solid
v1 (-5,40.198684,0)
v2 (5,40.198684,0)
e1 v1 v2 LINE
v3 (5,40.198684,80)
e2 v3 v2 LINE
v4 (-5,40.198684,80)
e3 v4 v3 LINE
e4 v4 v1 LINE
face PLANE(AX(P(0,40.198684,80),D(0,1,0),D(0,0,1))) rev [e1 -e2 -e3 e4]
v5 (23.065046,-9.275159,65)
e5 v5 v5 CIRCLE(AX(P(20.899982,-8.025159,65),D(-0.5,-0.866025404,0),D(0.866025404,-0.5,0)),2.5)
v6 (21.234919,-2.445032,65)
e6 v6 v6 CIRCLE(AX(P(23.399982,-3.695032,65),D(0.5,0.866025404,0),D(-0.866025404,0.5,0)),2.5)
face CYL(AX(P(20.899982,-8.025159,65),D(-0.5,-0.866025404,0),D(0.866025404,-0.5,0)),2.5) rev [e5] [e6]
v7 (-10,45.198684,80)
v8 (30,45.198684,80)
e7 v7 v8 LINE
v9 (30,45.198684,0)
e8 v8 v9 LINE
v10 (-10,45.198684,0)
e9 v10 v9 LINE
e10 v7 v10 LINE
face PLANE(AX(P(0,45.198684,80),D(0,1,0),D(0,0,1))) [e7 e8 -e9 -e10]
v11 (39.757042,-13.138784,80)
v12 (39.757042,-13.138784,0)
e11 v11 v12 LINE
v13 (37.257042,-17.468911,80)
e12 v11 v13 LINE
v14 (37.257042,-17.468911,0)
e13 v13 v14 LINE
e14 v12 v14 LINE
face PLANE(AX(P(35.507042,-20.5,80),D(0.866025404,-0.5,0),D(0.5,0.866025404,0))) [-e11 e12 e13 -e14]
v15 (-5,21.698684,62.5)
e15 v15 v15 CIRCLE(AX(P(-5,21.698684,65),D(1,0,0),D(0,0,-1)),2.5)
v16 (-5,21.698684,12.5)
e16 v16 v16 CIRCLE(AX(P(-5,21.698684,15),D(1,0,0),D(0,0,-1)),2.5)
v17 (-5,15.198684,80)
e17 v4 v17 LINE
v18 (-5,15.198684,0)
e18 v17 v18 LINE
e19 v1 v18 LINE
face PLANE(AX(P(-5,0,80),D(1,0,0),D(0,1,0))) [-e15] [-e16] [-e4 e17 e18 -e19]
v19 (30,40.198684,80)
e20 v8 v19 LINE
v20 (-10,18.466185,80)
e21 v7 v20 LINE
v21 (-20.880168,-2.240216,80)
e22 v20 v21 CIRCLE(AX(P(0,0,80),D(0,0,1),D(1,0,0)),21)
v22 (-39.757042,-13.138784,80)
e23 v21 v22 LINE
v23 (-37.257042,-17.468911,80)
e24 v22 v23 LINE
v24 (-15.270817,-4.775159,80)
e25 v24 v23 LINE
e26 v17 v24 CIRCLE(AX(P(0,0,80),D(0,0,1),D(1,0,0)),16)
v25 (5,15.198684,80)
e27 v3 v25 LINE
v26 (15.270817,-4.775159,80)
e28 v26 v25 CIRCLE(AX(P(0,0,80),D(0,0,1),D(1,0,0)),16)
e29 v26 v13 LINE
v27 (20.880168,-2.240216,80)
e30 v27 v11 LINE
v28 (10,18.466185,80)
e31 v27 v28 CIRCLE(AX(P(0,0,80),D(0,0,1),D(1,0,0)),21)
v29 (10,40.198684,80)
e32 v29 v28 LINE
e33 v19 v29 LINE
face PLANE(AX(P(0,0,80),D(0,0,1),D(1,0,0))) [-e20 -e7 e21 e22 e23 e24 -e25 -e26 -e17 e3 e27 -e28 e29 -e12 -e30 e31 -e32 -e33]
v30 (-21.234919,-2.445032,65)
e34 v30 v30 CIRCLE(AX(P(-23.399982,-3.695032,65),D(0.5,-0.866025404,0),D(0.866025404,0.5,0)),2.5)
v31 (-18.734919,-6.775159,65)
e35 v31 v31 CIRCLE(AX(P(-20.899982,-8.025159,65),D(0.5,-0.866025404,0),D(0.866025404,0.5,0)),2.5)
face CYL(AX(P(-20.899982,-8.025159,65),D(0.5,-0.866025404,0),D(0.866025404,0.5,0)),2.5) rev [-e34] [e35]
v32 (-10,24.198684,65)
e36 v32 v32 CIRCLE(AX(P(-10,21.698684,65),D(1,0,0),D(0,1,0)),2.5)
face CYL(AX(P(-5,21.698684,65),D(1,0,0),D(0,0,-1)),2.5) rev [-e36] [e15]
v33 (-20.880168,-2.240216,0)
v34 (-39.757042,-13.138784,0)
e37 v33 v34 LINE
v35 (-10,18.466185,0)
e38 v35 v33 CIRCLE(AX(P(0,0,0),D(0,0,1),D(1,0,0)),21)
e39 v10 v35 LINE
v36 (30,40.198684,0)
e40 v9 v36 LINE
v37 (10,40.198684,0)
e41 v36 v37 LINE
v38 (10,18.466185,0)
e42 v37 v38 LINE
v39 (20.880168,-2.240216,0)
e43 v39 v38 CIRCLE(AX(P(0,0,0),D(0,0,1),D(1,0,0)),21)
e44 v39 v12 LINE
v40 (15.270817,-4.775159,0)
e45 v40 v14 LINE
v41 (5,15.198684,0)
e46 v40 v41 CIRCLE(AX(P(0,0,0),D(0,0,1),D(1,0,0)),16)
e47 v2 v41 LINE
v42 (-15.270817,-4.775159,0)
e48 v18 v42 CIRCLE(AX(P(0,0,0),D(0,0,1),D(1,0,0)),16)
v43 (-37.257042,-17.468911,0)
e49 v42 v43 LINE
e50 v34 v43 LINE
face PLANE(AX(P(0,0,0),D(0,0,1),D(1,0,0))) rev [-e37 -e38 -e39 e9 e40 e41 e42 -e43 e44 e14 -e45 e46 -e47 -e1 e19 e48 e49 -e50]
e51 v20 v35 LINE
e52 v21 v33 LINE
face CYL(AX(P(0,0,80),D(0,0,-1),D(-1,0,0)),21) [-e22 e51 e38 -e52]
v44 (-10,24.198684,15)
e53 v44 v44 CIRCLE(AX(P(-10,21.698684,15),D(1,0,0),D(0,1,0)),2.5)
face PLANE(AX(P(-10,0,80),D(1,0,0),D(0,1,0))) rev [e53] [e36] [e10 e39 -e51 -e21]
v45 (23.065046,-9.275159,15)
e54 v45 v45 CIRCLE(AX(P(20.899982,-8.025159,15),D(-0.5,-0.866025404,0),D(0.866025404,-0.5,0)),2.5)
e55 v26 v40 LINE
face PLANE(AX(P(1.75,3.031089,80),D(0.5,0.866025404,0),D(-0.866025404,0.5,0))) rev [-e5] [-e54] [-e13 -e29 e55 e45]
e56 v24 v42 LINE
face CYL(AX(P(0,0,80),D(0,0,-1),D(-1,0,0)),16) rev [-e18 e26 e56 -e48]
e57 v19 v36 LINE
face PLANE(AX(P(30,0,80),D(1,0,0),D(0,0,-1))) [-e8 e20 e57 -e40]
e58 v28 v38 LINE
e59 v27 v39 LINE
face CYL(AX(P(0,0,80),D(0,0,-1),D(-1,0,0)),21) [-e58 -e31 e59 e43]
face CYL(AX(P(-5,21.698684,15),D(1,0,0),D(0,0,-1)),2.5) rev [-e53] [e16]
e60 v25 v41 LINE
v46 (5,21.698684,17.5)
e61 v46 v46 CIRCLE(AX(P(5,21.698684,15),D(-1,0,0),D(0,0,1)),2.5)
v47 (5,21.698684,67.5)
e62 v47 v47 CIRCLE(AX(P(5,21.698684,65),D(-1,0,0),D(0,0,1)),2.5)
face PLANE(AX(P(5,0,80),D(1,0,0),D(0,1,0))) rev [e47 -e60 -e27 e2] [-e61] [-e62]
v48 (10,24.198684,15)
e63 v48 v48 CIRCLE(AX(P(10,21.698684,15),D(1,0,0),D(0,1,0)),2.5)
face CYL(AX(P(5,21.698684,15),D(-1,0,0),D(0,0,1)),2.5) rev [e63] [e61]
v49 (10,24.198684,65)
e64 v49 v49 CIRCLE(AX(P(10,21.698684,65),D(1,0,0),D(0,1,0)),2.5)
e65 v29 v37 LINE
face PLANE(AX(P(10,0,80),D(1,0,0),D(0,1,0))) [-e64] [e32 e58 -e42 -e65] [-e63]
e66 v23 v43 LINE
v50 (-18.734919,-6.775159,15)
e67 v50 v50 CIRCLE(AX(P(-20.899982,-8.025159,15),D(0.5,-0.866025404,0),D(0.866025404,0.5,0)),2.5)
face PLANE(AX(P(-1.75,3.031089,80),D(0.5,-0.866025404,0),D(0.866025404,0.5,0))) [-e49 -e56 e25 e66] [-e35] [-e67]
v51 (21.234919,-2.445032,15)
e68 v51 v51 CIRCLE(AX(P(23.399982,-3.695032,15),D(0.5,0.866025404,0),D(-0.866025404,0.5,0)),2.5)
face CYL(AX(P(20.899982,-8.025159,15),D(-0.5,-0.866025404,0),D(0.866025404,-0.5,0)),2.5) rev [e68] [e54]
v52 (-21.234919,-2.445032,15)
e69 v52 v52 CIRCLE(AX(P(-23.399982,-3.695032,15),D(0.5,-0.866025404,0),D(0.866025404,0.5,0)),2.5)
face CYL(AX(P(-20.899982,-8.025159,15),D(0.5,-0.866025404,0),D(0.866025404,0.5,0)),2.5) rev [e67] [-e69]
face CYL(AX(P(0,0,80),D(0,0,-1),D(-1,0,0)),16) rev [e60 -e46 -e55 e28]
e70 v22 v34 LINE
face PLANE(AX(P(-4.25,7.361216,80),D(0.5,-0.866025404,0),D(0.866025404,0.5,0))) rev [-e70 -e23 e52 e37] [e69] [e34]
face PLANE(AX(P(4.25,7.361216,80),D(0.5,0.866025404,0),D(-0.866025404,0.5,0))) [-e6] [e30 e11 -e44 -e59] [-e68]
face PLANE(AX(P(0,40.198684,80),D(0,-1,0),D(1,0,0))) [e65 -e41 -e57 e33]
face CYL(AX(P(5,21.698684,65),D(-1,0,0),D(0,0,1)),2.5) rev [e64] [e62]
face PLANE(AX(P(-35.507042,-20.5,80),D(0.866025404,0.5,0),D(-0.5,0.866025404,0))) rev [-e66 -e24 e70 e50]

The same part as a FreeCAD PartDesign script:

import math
import FreeCAD as App
import Part
import Sketcher
Q = App.Units.Quantity

doc = App.newDocument("Part")
body = doc.addObject("PartDesign::Body", "Body")

# Sketch on XY plane
sketch1 = body.newObject("Sketcher::SketchObject", "Sketch")
sketch1.AttachmentSupport = (doc.getObject("XY_Plane"), [""])
sketch1.MapMode = "FlatFace"
sketch1.addGeometry([
    Part.LineSegment(App.Vector(-5, 15, 0), App.Vector(-5, 40, 0)),  # 0
    Part.LineSegment(App.Vector(-5, 40, 0), App.Vector(5, 40, 0)),  # 1
    Part.LineSegment(App.Vector(5, 40, 0), App.Vector(5, 15, 0)),  # 2
    Part.ArcOfCircle(Part.Circle(App.Vector(0, 0, 0), App.Vector(0, 0, 1), 16), math.radians(-17), math.radians(72)),  # 3
    Part.LineSegment(App.Vector(15, -5, 0), App.Vector(37, -17, 0)),  # 4
    Part.LineSegment(App.Vector(37, -17, 0), App.Vector(40, -13, 0)),  # 5
    Part.LineSegment(App.Vector(40, -13, 0), App.Vector(21, -2, 0)),  # 6
    Part.ArcOfCircle(Part.Circle(App.Vector(0, 0, 0), App.Vector(0, 0, 1), 21), math.radians(-6), math.radians(62)),  # 7
    Part.LineSegment(App.Vector(10, 18, 0), App.Vector(10, 40, 0)),  # 8
    Part.LineSegment(App.Vector(10, 40, 0), App.Vector(30, 40, 0)),  # 9
    Part.LineSegment(App.Vector(30, 40, 0), App.Vector(30, 45, 0)),  # 10
    Part.LineSegment(App.Vector(30, 45, 0), App.Vector(-10, 45, 0)),  # 11
    Part.LineSegment(App.Vector(-10, 45, 0), App.Vector(-10, 18, 0)),  # 12
    Part.ArcOfCircle(Part.Circle(App.Vector(0, 0, 0), App.Vector(0, 0, 1), 21), math.radians(118), math.radians(186)),  # 13
    Part.LineSegment(App.Vector(-21, -2, 0), App.Vector(-40, -13, 0)),  # 14
    Part.LineSegment(App.Vector(-40, -13, 0), App.Vector(-37, -17, 0)),  # 15
    Part.LineSegment(App.Vector(-37, -17, 0), App.Vector(-15, -5, 0)),  # 16
    Part.ArcOfCircle(Part.Circle(App.Vector(0, 0, 0), App.Vector(0, 0, 1), 16), math.radians(108), math.radians(197)),  # 17
], False)
sketch1.addConstraint([
    Sketcher.Constraint("Coincident", 0, 2, 1, 1),
    Sketcher.Constraint("Coincident", 1, 2, 2, 1),
    Sketcher.Constraint("Coincident", 2, 2, 3, 2),
    Sketcher.Constraint("Coincident", 3, 1, 4, 1),
    Sketcher.Constraint("Coincident", 4, 2, 5, 1),
    Sketcher.Constraint("Coincident", 5, 2, 6, 1),
    Sketcher.Constraint("Coincident", 6, 2, 7, 1),
    Sketcher.Constraint("Coincident", 7, 2, 8, 1),
    Sketcher.Constraint("Coincident", 8, 2, 9, 1),
    Sketcher.Constraint("Coincident", 9, 2, 10, 1),
    Sketcher.Constraint("Coincident", 10, 2, 11, 1),
    Sketcher.Constraint("Coincident", 11, 2, 12, 1),
    Sketcher.Constraint("Coincident", 12, 2, 13, 1),
    Sketcher.Constraint("Coincident", 13, 2, 14, 1),
    Sketcher.Constraint("Coincident", 14, 2, 15, 1),
    Sketcher.Constraint("Coincident", 15, 2, 16, 1),
    Sketcher.Constraint("Coincident", 16, 2, 17, 2),
    Sketcher.Constraint("Coincident", 17, 1, 0, 1),
    Sketcher.Constraint("Vertical", 0),
    Sketcher.Constraint("Horizontal", 1),
    Sketcher.Constraint("Vertical", 2),
    Sketcher.Constraint("Vertical", 8),
    Sketcher.Constraint("Horizontal", 9),
    Sketcher.Constraint("Vertical", 10),
    Sketcher.Constraint("Horizontal", 11),
    Sketcher.Constraint("Vertical", 12),
    Sketcher.Constraint("Coincident", 3, 3, -1, 1),
    Sketcher.Constraint("Coincident", 7, 3, -1, 1),
    Sketcher.Constraint("Coincident", 13, 3, -1, 1),
    Sketcher.Constraint("Coincident", 17, 3, -1, 1),
    Sketcher.Constraint("Equal", 7, 13),
    Sketcher.Constraint("Equal", 3, 17),
    Sketcher.Constraint("Symmetric", 5, 2, 14, 2, -2),
    Sketcher.Constraint("Symmetric", 4, 2, 15, 2, -2),
    Sketcher.Constraint("Perpendicular", 4, 5),
    Sketcher.Constraint("Perpendicular", 5, 6),
    Sketcher.Constraint("Perpendicular", 14, 15),
    Sketcher.Constraint("Perpendicular", 15, 16),
    Sketcher.Constraint("Horizontal", 1, 2, 8, 2),
    Sketcher.Constraint("Horizontal", 7, 2, 12, 2),
    Sketcher.Constraint("Horizontal", 2, 2, 17, 1),
    Sketcher.Constraint("Radius", 3, 16.0),
    Sketcher.Constraint("Radius", 7, 21.0),
    Sketcher.Constraint("DistanceX", 1, 1, 1, 2, 10.0),
    Sketcher.Constraint("DistanceX", 9, 1, 9, 2, 20.0),
    Sketcher.Constraint("DistanceX", 11, 2, 11, 1, 40.0),
    Sketcher.Constraint("DistanceY", 0, 1, 0, 2, 25.0),
    Sketcher.Constraint("DistanceY", 10, 1, 10, 2, 5.0),
    Sketcher.Constraint("Angle", 4, Q("-30 deg")),
    Sketcher.Constraint("Distance", 5, 5.0),
    Sketcher.Constraint("DistanceY", 13, 2, 12, 2, 20.706402),
    Sketcher.Constraint("DistanceX", -1, 1, 4, 2, 37.257042),
])
pad1 = body.newObject("PartDesign::Pad", "Pad")
pad1.Profile = sketch1
pad1.Length = 80

# Sketch on XY plane
sketch2 = body.newObject("Sketcher::SketchObject", "Sketch001")
sketch2.AttachmentSupport = (doc.getObject("XY_Plane"), [""])
sketch2.MapMode = "FlatFace"
sketch2.AttachmentOffset = App.Placement(App.Vector(0, 0, 65), App.Rotation())
sketch2.addGeometry([
    Part.LineSegment(App.Vector(26.7, 1.9, 0), App.Vector(20.9, -8, 0)),
    Part.LineSegment(App.Vector(20.9, -8, 0), App.Vector(23.1, -9.3, 0)),
    Part.LineSegment(App.Vector(23.1, -9.3, 0), App.Vector(28.1, -0.6, 0)),
    Part.LineSegment(App.Vector(28.1, -0.6, 0), App.Vector(26.7, 1.9, 0)),
], False)
sketch2.addGeometry(Part.LineSegment(App.Vector(20.9, -8, 0), App.Vector(26.7, 1.9, 0)), True)  # axis
sketch2.addConstraint([
    Sketcher.Constraint("Coincident", 0, 2, 1, 1),
    Sketcher.Constraint("Coincident", 1, 2, 2, 1),
    Sketcher.Constraint("Coincident", 2, 2, 3, 1),
    Sketcher.Constraint("Coincident", 3, 2, 0, 1),
    Sketcher.Constraint("Coincident", 4, 1, 0, 2),
    Sketcher.Constraint("Coincident", 4, 2, 3, 2),
    Sketcher.Constraint("Perpendicular", 0, 1),
    Sketcher.Constraint("Perpendicular", 1, 2),
    Sketcher.Constraint("Angle", 0, Q("-120 deg")),
    Sketcher.Constraint("Angle", 3, Q("119 deg")),
    Sketcher.Constraint("Distance", 2, 10.0),
    Sketcher.Constraint("Distance", 1, 2.5),
    Sketcher.Constraint("DistanceY", 0, 2, -1, 1, 8.025159),
    Sketcher.Constraint("DistanceX", -1, 1, 3, 2, 26.651058),
])
groove = body.newObject("PartDesign::Groove", "Groove")
groove.Profile = sketch2
groove.ReferenceAxis = (sketch2, ["Axis0"])
groove.Angle = 360
doc.recompute()

linearpattern = body.newObject("PartDesign::LinearPattern", "LinearPattern")
linearpattern.Originals = [groove]
linearpattern.Direction = (doc.getObject("Z_Axis"), [""])
linearpattern.Mode = "offset"
linearpattern.Offset = 50
linearpattern.Occurrences = 2
linearpattern.Reversed = True
body.Tip = linearpattern
doc.recompute()

mirrored = body.newObject("PartDesign::Mirrored", "Mirrored")
mirrored.Originals = [groove]
mirrored.MirrorPlane = (doc.getObject("YZ_Plane"), [""])
body.Tip = mirrored

# Sketch on XY plane
sketch3 = body.newObject("Sketcher::SketchObject", "Sketch002")
sketch3.AttachmentSupport = (doc.getObject("XY_Plane"), [""])
sketch3.MapMode = "FlatFace"
sketch3.AttachmentOffset = App.Placement(App.Vector(0, 0, 15), App.Rotation())
sketch3.addGeometry([
    Part.LineSegment(App.Vector(-20.9, -8, 0), App.Vector(-26.7, 1.9, 0)),
    Part.LineSegment(App.Vector(-26.7, 1.9, 0), App.Vector(-28.1, -0.6, 0)),
    Part.LineSegment(App.Vector(-28.1, -0.6, 0), App.Vector(-23.1, -9.3, 0)),
    Part.LineSegment(App.Vector(-23.1, -9.3, 0), App.Vector(-20.9, -8, 0)),
], False)
sketch3.addGeometry(Part.LineSegment(App.Vector(-26.7, 1.9, 0), App.Vector(-20.9, -8, 0)), True)  # axis
sketch3.addConstraint([
    Sketcher.Constraint("Coincident", 0, 2, 1, 1),
    Sketcher.Constraint("Coincident", 1, 2, 2, 1),
    Sketcher.Constraint("Coincident", 2, 2, 3, 1),
    Sketcher.Constraint("Coincident", 3, 2, 0, 1),
    Sketcher.Constraint("Coincident", 4, 1, 0, 2),
    Sketcher.Constraint("Coincident", 4, 2, 3, 2),
    Sketcher.Constraint("Parallel", 0, 2),
    Sketcher.Constraint("Perpendicular", 2, 3),
    Sketcher.Constraint("Angle", 0, Q("120 deg")),
    Sketcher.Constraint("Angle", 1, Q("-119 deg")),
    Sketcher.Constraint("Distance", 2, 10.0),
    Sketcher.Constraint("Distance", 3, 2.5),
    Sketcher.Constraint("DistanceX", 0, 2, -1, 1, 26.651058),
    Sketcher.Constraint("DistanceY", 2, 2, -1, 1, 9.275159),
])
groove2 = body.newObject("PartDesign::Groove", "Groove001")
groove2.Profile = sketch3
groove2.ReferenceAxis = (sketch3, ["Axis0"])
groove2.Angle = 360

# Sketch on XZ plane
sketch4 = body.newObject("Sketcher::SketchObject", "Sketch003")
sketch4.AttachmentSupport = (doc.getObject("XZ_Plane"), [""])
sketch4.MapMode = "FlatFace"
sketch4.AttachmentOffset = App.Placement(App.Vector(0, 0, -21.698684), App.Rotation())
sketch4.addGeometry([
    Part.LineSegment(App.Vector(-39.8, 15, 0), App.Vector(-5, 15, 0)),
    Part.LineSegment(App.Vector(-5, 15, 0), App.Vector(-5, 12.5, 0)),
    Part.LineSegment(App.Vector(-5, 12.5, 0), App.Vector(-39.8, 12.5, 0)),
    Part.LineSegment(App.Vector(-39.8, 12.5, 0), App.Vector(-39.8, 15, 0)),
], False)
sketch4.addGeometry(Part.LineSegment(App.Vector(-5, 15, 0), App.Vector(-39.8, 15, 0)), True)  # axis
sketch4.addConstraint([
    Sketcher.Constraint("Coincident", 0, 2, 1, 1),
    Sketcher.Constraint("Coincident", 1, 2, 2, 1),
    Sketcher.Constraint("Coincident", 2, 2, 3, 1),
    Sketcher.Constraint("Coincident", 3, 2, 0, 1),
    Sketcher.Constraint("Horizontal", 0),
    Sketcher.Constraint("Vertical", 1),
    Sketcher.Constraint("Horizontal", 2),
    Sketcher.Constraint("Vertical", 3),
    Sketcher.Constraint("Horizontal", 4),
    Sketcher.Constraint("Coincident", 4, 1, 0, 2),
    Sketcher.Constraint("Vertical", 2, 2, 4, 2),
    Sketcher.Constraint("DistanceY", 1, 2, 1, 1, 2.5),
    Sketcher.Constraint("DistanceX", 0, 2, -1, 1, 5.0),
    Sketcher.Constraint("DistanceY", -1, 1, 0, 2, 15.0),
    Sketcher.Constraint("DistanceX", 0, 1, 0, 2, 34.757042),
])
groove3 = body.newObject("PartDesign::Groove", "Groove002")
groove3.Profile = sketch4
groove3.ReferenceAxis = (sketch4, ["Axis0"])
groove3.Angle = 360
doc.recompute()

linearpattern2 = body.newObject("PartDesign::LinearPattern", "LinearPattern001")
linearpattern2.Originals = [groove3]
linearpattern2.Direction = (doc.getObject("Z_Axis"), [""])
linearpattern2.Mode = "offset"
linearpattern2.Offset = 50
linearpattern2.Occurrences = 2
body.Tip = linearpattern2
doc.recompute()

mirrored2 = body.newObject("PartDesign::Mirrored", "Mirrored001")
mirrored2.Originals = [groove3]
mirrored2.MirrorPlane = (doc.getObject("YZ_Plane"), [""])
body.Tip = mirrored2

# Sketch on XZ plane
sketch5 = body.newObject("Sketcher::SketchObject", "Sketch004")
sketch5.AttachmentSupport = (doc.getObject("XZ_Plane"), [""])
sketch5.MapMode = "FlatFace"
sketch5.AttachmentOffset = App.Placement(App.Vector(0, 0, -21.698684), App.Rotation())
sketch5.addGeometry([
    Part.LineSegment(App.Vector(5, 65, 0), App.Vector(39.8, 65, 0)),
    Part.LineSegment(App.Vector(39.8, 65, 0), App.Vector(39.8, 62.5, 0)),
    Part.LineSegment(App.Vector(39.8, 62.5, 0), App.Vector(5, 62.5, 0)),
    Part.LineSegment(App.Vector(5, 62.5, 0), App.Vector(5, 65, 0)),
], False)
sketch5.addGeometry(Part.LineSegment(App.Vector(39.8, 65, 0), App.Vector(5, 65, 0)), True)  # axis
sketch5.addConstraint([
    Sketcher.Constraint("Coincident", 0, 2, 1, 1),
    Sketcher.Constraint("Coincident", 1, 2, 2, 1),
    Sketcher.Constraint("Coincident", 2, 2, 3, 1),
    Sketcher.Constraint("Coincident", 3, 2, 0, 1),
    Sketcher.Constraint("Horizontal", 0),
    Sketcher.Constraint("Vertical", 1),
    Sketcher.Constraint("Horizontal", 2),
    Sketcher.Constraint("Vertical", 3),
    Sketcher.Constraint("Horizontal", 4),
    Sketcher.Constraint("Coincident", 4, 1, 0, 2),
    Sketcher.Constraint("Vertical", 2, 2, 4, 2),
    Sketcher.Constraint("DistanceY", 1, 2, 1, 1, 2.5),
    Sketcher.Constraint("DistanceY", -1, 1, 0, 2, 65.0),
    Sketcher.Constraint("DistanceX", -1, 1, 2, 2, 5.0),
    Sketcher.Constraint("DistanceX", 0, 1, 0, 2, 34.757042),
])
groove4 = body.newObject("PartDesign::Groove", "Groove003")
groove4.Profile = sketch5
groove4.ReferenceAxis = (sketch5, ["Axis0"])
groove4.Angle = 360

doc.recompute()
